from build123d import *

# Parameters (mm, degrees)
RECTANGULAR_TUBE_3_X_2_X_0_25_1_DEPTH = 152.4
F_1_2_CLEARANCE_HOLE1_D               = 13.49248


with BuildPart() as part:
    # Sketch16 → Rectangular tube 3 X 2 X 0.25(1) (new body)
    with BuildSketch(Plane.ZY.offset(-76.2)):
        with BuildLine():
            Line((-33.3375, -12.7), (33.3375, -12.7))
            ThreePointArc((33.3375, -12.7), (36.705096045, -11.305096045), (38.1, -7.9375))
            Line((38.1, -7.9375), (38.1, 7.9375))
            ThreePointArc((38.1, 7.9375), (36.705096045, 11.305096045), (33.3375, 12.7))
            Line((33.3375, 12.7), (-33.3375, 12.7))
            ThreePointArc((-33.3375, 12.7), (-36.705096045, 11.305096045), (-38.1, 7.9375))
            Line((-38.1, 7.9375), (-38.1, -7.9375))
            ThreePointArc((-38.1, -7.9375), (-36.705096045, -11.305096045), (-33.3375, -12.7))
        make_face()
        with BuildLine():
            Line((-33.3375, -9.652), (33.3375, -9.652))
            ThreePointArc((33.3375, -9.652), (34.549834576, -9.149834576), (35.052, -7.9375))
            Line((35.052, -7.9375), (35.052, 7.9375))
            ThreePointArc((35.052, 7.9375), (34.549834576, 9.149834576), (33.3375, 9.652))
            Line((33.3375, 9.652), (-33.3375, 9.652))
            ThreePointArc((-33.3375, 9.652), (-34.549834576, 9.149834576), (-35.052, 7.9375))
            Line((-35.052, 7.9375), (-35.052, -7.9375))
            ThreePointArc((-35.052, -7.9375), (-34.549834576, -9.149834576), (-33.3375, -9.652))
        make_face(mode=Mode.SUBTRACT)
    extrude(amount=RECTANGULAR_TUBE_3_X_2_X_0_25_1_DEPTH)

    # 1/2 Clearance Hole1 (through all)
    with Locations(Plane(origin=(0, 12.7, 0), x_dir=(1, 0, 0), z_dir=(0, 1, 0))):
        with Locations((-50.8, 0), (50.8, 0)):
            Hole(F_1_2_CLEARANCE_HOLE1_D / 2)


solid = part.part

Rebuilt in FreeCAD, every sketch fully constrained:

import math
import FreeCAD as App
import Part
import Sketcher
from FreeCAD import Vector
Q = App.Units.Quantity

doc = App.newDocument("Part")
body = doc.addObject("PartDesign::Body", "Body")

# Sketch on YZ plane
sketch1 = body.newObject("Sketcher::SketchObject", "Sketch")
sketch1.AttachmentSupport = (doc.getObject("YZ_Plane"), [""])
sketch1.MapMode = "FlatFace"
sketch1.AttachmentOffset = App.Placement(Vector(0, 0, 3 * 25.4), App.Rotation())
sketch1.addGeometry([
    Part.LineSegment(Vector(-12.7, -33.3375, 0), Vector(-12.7, 33.3375, 0)),  # 0
    Part.ArcOfCircle(Part.Circle(Vector(-7.9375, 33.3375, 0), Vector(0, 0, 1), 4.7625), math.radians(90), math.radians(180)),  # 1
    Part.LineSegment(Vector(-7.9375, 38.1, 0), Vector(7.9375, 38.1, 0)),  # 2
    Part.ArcOfCircle(Part.Circle(Vector(7.9375, 33.3375, 0), Vector(0, 0, 1), 4.7625), math.radians(0), math.radians(90)),  # 3
    Part.LineSegment(Vector(12.7, 33.3375, 0), Vector(12.7, -33.3375, 0)),  # 4
    Part.ArcOfCircle(Part.Circle(Vector(7.9375, -33.3375, 0), Vector(0, 0, 1), 4.7625), math.radians(-90), math.radians(0)),  # 5
    Part.LineSegment(Vector(7.9375, -38.1, 0), Vector(-7.9375, -38.1, 0)),  # 6
    Part.ArcOfCircle(Part.Circle(Vector(-7.9375, -33.3375, 0), Vector(0, 0, 1), 4.7625), math.radians(-180), math.radians(-90)),  # 7
    Part.LineSegment(Vector(-9.652, 33.3375, 0), Vector(-9.652, -33.3375, 0)),  # 8
    Part.ArcOfCircle(Part.Circle(Vector(-7.9375, -33.3375, 0), Vector(0, 0, 1), 1.7145), math.radians(-180), math.radians(-90)),  # 9
    Part.LineSegment(Vector(-7.9375, -35.052, 0), Vector(7.9375, -35.052, 0)),  # 10
    Part.ArcOfCircle(Part.Circle(Vector(7.9375, -33.3375, 0), Vector(0, 0, 1), 1.7145), math.radians(-90), math.radians(0)),  # 11
    Part.LineSegment(Vector(9.652, -33.3375, 0), Vector(9.652, 33.3375, 0)),  # 12
    Part.ArcOfCircle(Part.Circle(Vector(7.9375, 33.3375, 0), Vector(0, 0, 1), 1.7145), math.radians(0), math.radians(90)),  # 13
    Part.LineSegment(Vector(7.9375, 35.052, 0), Vector(-7.9375, 35.052, 0)),  # 14
    Part.ArcOfCircle(Part.Circle(Vector(-7.9375, 33.3375, 0), Vector(0, 0, 1), 1.7145), math.radians(90), math.radians(180)),  # 15
], False)
sketch1.addConstraint([
    Sketcher.Constraint("Tangent", 0, 2, 1, 2),
    Sketcher.Constraint("Tangent", 1, 1, 2, 1),
    Sketcher.Constraint("Tangent", 2, 2, 3, 2),
    Sketcher.Constraint("Tangent", 3, 1, 4, 1),
    Sketcher.Constraint("Tangent", 4, 2, 5, 2),
    Sketcher.Constraint("Tangent", 5, 1, 6, 1),
    Sketcher.Constraint("Tangent", 6, 2, 7, 2),
    Sketcher.Constraint("Tangent", 7, 1, 0, 1),
    Sketcher.Constraint("Tangent", 8, 2, 9, 1),
    Sketcher.Constraint("Tangent", 9, 2, 10, 1),
    Sketcher.Constraint("Tangent", 10, 2, 11, 1),
    Sketcher.Constraint("Tangent", 11, 2, 12, 1),
    Sketcher.Constraint("Tangent", 12, 2, 13, 1),
    Sketcher.Constraint("Tangent", 13, 2, 14, 1),
    Sketcher.Constraint("Tangent", 14, 2, 15, 1),
    Sketcher.Constraint("Tangent", 15, 2, 8, 1),
    Sketcher.Constraint("Vertical", 0),
    Sketcher.Constraint("Horizontal", 2),
    Sketcher.Constraint("Vertical", 4),
    Sketcher.Constraint("Horizontal", 6),
    Sketcher.Constraint("Vertical", 8),
    Sketcher.Constraint("Horizontal", 10),
    Sketcher.Constraint("Vertical", 12),
    Sketcher.Constraint("Horizontal", 14),
    Sketcher.Constraint("Coincident", 9, 3, 7, 3),
    Sketcher.Constraint("Coincident", 11, 3, 5, 3),
    Sketcher.Constraint("Coincident", 13, 3, 3, 3),
    Sketcher.Constraint("Equal", 1, 3),
    Sketcher.Constraint("Equal", 3, 5),
    Sketcher.Constraint("Equal", 5, 7),
    Sketcher.Constraint("Equal", 13, 15),
    Sketcher.Constraint("Symmetric", 1, 3, 5, 3, -1, 1),
    Sketcher.Constraint("Radius", 1, Q("0.1875 in")),
    Sketcher.Constraint("DistanceX", 0, 2, -1, 1, Q("0.5 in")),
    Sketcher.Constraint("DistanceY", -1, 1, 1, 1, Q("1.5 in")),
    Sketcher.Constraint("Radius", 9, Q("0.0675 in")),
])
pad1 = body.newObject("PartDesign::Pad", "Pad")
pad1.Profile = sketch1
pad1.Length = Q("6 in")
pad1.Reversed = True

# Sketch on XZ plane
sketch2 = body.newObject("Sketcher::SketchObject", "Sketch001")
sketch2.AttachmentSupport = (doc.getObject("XZ_Plane"), [""])
sketch2.MapMode = "FlatFace"
sketch2.AttachmentOffset = App.Placement(Vector(0, 0, -0.5 * 25.4), App.Rotation())
sketch2.addGeometry([
    Part.Circle(Vector(-50.8, 0, 0), Vector(0, 0, 1), 6.74624),
    Part.Circle(Vector(50.8, 0, 0), Vector(0, 0, 1), 6.74624),
], False)
sketch2.addConstraint([
    Sketcher.Constraint("Equal", 0, 1),
    Sketcher.Constraint("Symmetric", 0, 3, 1, 3, -1, 1),
    Sketcher.Constraint("PointOnObject", 0, 3, -1),
    Sketcher.Constraint("DistanceX", 0, 3, -1, 1, Q("2 in")),
    Sketcher.Constraint("Diameter", 0, Q("0.5312 in")),
])
doc.recompute()
hole = body.newObject("PartDesign::Hole", "Hole")
hole.Profile = sketch2
hole.ThreadType = "None"
hole.Diameter = Q("0.5312 in")
hole.DepthType = "ThroughAll"
hole.Reversed = True

doc.recompute()
